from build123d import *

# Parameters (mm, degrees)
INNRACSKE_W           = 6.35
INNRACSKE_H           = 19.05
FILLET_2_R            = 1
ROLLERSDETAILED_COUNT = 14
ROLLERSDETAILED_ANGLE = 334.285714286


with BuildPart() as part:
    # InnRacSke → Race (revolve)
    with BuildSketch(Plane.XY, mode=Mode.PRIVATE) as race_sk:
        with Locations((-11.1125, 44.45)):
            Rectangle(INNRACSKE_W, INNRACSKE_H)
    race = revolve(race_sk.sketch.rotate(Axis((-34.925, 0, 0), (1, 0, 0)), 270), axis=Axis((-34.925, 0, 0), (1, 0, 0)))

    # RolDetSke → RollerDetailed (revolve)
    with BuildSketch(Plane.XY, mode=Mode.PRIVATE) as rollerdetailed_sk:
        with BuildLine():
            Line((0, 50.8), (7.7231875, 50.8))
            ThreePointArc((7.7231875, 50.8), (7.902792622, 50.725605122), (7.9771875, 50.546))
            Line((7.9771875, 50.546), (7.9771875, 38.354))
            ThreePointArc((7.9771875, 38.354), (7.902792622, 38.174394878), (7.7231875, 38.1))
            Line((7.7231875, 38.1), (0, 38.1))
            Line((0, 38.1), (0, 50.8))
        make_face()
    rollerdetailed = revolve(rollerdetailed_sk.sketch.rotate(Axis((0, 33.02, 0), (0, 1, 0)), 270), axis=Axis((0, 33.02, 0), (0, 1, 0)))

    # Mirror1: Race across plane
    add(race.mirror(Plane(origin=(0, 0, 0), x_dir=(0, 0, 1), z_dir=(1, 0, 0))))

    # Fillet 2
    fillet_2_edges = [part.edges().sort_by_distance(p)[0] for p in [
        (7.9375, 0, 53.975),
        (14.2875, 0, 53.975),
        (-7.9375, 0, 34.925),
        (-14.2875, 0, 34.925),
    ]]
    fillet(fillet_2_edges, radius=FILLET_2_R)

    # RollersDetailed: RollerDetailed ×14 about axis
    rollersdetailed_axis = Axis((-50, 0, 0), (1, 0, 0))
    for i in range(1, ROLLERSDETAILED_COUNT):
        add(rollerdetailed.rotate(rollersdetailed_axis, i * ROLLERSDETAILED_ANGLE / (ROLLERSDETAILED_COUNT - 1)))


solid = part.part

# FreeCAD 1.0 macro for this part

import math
import FreeCAD as App
import Part
import Sketcher
Q = App.Units.Quantity


def edges_at(feature, points):
    """Names of the edges that pass closest to the given points."""
    edges = feature.Shape.Edges
    near = lambda p: min(range(len(edges)), key=lambda i: edges[i].distToShape(Part.Vertex(*p))[0])
    return sorted({f"Edge{near(p) + 1}" for p in points})


def add_polygon(sketch, points):
    """Adds a closed chain of lines whose ends are joined by coincident constraints."""
    first, n = sketch.GeometryCount, len(points)
    for a, b in zip(points, points[1:] + points[:1]):
        sketch.addGeometry(Part.LineSegment(App.Vector(*a, 0), App.Vector(*b, 0)), False)
    for i in range(n):
        sketch.addConstraint(Sketcher.Constraint("Coincident", first + i, 2, first + (i + 1) % n, 1))

doc = App.newDocument("Part")
body = doc.addObject("PartDesign::Body", "Body")

sketch1 = doc.addObject("Sketcher::SketchObject", "Sketch")
body.addObject(sketch1)
sketch1.AttachmentSupport = (doc.XY_Plane, [""])
sketch1.MapMode = "FlatFace"
add_polygon(sketch1, [(-14.2875, 53.975), (-14.2875, 34.925), (-7.9375, 34.925), (-7.9375, 53.975)])
sketch1.addConstraint(Sketcher.Constraint("Vertical", 0))
sketch1.addConstraint(Sketcher.Constraint("Horizontal", 1))
sketch1.addConstraint(Sketcher.Constraint("Vertical", 2))
sketch1.addConstraint(Sketcher.Constraint("Horizontal", 3))
sketch1.addConstraint(Sketcher.Constraint("DistanceX", 1, 1, 1, 2, Q("0.25 in")))
sketch1.addConstraint(Sketcher.Constraint("DistanceY", 0, 2, 0, 1, Q("0.75 in")))
sketch1.addConstraint(Sketcher.Constraint("DistanceX", 0, 2, -1, 1, Q("0.5625 in")))
sketch1.addConstraint(Sketcher.Constraint("DistanceY", -1, 1, 0, 2, Q("1.375 in")))
revolution = doc.addObject("PartDesign::Revolution", "Revolution")
body.addObject(revolution)
revolution.Profile = sketch1
revolution.ReferenceAxis = (sketch1, ["H_Axis"])
revolution.Angle = 360

sketch2 = doc.addObject("Sketcher::SketchObject", "Sketch001")
body.addObject(sketch2)
sketch2.AttachmentSupport = (doc.XY_Plane, [""])
sketch2.MapMode = "FlatFace"
sketch2.addGeometry(Part.LineSegment(App.Vector(7.723187, 50.8, 0), App.Vector(0, 50.8, 0)), False)
sketch2.addGeometry(Part.LineSegment(App.Vector(0, 50.8, 0), App.Vector(0, 38.1, 0)), False)
sketch2.addGeometry(Part.LineSegment(App.Vector(0, 38.1, 0), App.Vector(7.723187, 38.1, 0)), False)
sketch2.addGeometry(Part.ArcOfCircle(Part.Circle(App.Vector(7.723187, 38.354, 0), App.Vector(0, 0, 1), 0.254), math.radians(-90), math.radians(0)), False)
sketch2.addGeometry(Part.LineSegment(App.Vector(7.977188, 38.354, 0), App.Vector(7.977188, 50.546, 0)), False)
sketch2.addGeometry(Part.ArcOfCircle(Part.Circle(App.Vector(7.723187, 50.546, 0), App.Vector(0, 0, 1), 0.254), math.radians(0), math.radians(90)), False)
sketch2.addConstraint(Sketcher.Constraint("Coincident", 0, 2, 1, 1))
sketch2.addConstraint(Sketcher.Constraint("Coincident", 1, 2, 2, 1))
sketch2.addConstraint(Sketcher.Constraint("Tangent", 2, 2, 3, 1))
sketch2.addConstraint(Sketcher.Constraint("Tangent", 3, 2, 4, 1))
sketch2.addConstraint(Sketcher.Constraint("Tangent", 4, 2, 5, 1))
sketch2.addConstraint(Sketcher.Constraint("Tangent", 5, 2, 0, 1))
sketch2.addConstraint(Sketcher.Constraint("Horizontal", 0))
sketch2.addConstraint(Sketcher.Constraint("Vertical", 1))
sketch2.addConstraint(Sketcher.Constraint("Horizontal", 2))
sketch2.addConstraint(Sketcher.Constraint("Vertical", 4))
sketch2.addConstraint(Sketcher.Constraint("Equal", 3, 5))
sketch2.addConstraint(Sketcher.Constraint("PointOnObject", 0, 2, -2))
sketch2.addConstraint(Sketcher.Constraint("Radius", 3, Q("0.01 in")))
sketch2.addConstraint(Sketcher.Constraint("DistanceY", 1, 2, 1, 1, Q("0.5 in")))
sketch2.addConstraint(Sketcher.Constraint("DistanceY", -1, 1, 0, 2, Q("2 in")))
sketch2.addConstraint(Sketcher.Constraint("DistanceX", 0, 2, 0, 1, 7.723187))
revolution2 = doc.addObject("PartDesign::Revolution", "Revolution001")
body.addObject(revolution2)
revolution2.Profile = sketch2
revolution2.ReferenceAxis = (sketch2, ["V_Axis"])
revolution2.Angle = 360
doc.recompute()

mirrored = doc.addObject("PartDesign::Mirrored", "Mirrored")
body.addObject(mirrored)
mirrored.Originals = [revolution]
mirrored.MirrorPlane = (doc.YZ_Plane, [""])
body.Tip = mirrored
doc.recompute()

fillet = doc.addObject("PartDesign::Fillet", "Fillet")
body.addObject(fillet)
fillet.Base = (mirrored, edges_at(mirrored, [
    (7.938, 0, 53.975),
    (14.287, 0, 53.975),
    (-7.938, 0, 34.925),
    (-14.287, 0, 34.925),
]))
fillet.Radius = 1
doc.recompute()

polarpattern = doc.addObject("PartDesign::PolarPattern", "PolarPattern")
body.addObject(polarpattern)
polarpattern.Originals = [revolution2]
polarpattern.Axis = (doc.X_Axis, [""])
polarpattern.Angle = 360
polarpattern.Occurrences = 14
body.Tip = polarpattern

doc.recompute()
